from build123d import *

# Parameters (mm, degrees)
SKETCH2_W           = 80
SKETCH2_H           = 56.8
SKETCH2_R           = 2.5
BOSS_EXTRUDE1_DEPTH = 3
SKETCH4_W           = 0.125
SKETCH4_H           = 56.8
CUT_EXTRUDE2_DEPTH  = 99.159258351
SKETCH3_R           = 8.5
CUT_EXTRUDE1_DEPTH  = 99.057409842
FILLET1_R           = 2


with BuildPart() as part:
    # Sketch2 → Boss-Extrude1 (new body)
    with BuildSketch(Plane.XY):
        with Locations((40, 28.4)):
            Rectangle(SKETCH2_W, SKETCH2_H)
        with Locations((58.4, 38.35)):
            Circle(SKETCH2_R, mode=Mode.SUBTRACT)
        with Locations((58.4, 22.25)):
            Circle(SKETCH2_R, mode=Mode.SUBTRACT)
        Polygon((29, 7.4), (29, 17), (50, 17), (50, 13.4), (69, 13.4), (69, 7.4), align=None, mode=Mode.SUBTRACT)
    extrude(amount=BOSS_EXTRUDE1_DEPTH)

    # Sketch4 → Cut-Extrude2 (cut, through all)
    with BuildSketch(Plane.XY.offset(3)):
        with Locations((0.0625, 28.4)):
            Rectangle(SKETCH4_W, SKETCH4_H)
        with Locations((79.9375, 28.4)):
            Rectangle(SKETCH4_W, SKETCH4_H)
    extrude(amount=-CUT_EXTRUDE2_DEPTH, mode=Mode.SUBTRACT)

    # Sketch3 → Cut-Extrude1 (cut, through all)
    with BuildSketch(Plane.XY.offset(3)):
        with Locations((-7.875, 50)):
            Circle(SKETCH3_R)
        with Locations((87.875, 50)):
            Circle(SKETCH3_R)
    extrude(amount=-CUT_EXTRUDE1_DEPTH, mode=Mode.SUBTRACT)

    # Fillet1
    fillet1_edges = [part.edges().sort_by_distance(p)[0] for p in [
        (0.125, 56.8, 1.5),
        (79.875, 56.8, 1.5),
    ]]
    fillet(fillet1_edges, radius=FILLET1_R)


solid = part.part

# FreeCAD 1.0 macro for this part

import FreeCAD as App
import Part
import Sketcher

V = App.Vector


def edges_at(feature, points):
    """Names of the edges that pass closest to the given points."""
    edges = feature.Shape.Edges
    near = lambda p: min(range(len(edges)), key=lambda i: edges[i].distToShape(Part.Vertex(*p))[0])
    return sorted({f"Edge{near(p) + 1}" for p in points})


def add_polygon(sketch, points):
    """Adds a closed chain of lines whose ends are joined by coincident constraints."""
    first, n = sketch.GeometryCount, len(points)
    for a, b in zip(points, points[1:] + points[:1]):
        sketch.addGeometry(Part.LineSegment(App.Vector(*a, 0), App.Vector(*b, 0)), False)
    for i in range(n):
        sketch.addConstraint(Sketcher.Constraint("Coincident", first + i, 2, first + (i + 1) % n, 1))

doc = App.newDocument("Part")
body = doc.addObject("PartDesign::Body", "Body")

# Sketch on XY plane
sketch1 = doc.addObject("Sketcher::SketchObject", "Sketch")
body.addObject(sketch1)
sketch1.AttachmentSupport = (doc.XY_Plane, [""])
sketch1.MapMode = "FlatFace"
add_polygon(sketch1, [(0, 56.8), (0, 0), (80, 0), (80, 56.8)])  # lines 0-3
add_polygon(sketch1, [(69, 7.4), (29, 7.4), (29, 17), (50, 17), (50, 13.4), (69, 13.4)])  # lines 4-9
sketch1.addGeometry(Part.Circle(V(58.4, 22.25, 0), V(0, 0, 1), 2.5), False)  # 10
sketch1.addGeometry(Part.Circle(V(58.4, 38.35, 0), V(0, 0, 1), 2.5), False)  # 11
sketch1.addConstraint([
    Sketcher.Constraint("Vertical", 0),
    Sketcher.Constraint("Horizontal", 1),
    Sketcher.Constraint("Vertical", 2),
    Sketcher.Constraint("Horizontal", 3),
    Sketcher.Constraint("Horizontal", 4),
    Sketcher.Constraint("Vertical", 5),
    Sketcher.Constraint("Horizontal", 6),
    Sketcher.Constraint("Vertical", 7),
    Sketcher.Constraint("Horizontal", 8),
    Sketcher.Constraint("Vertical", 9),
    Sketcher.Constraint("Coincident", 0, 2, -1, 1),
    Sketcher.Constraint("Equal", 10, 11),
    Sketcher.Constraint("Vertical", 10, 3, 11, 3),
    Sketcher.Constraint("Diameter", 10, 5.0),
    Sketcher.Constraint("DistanceX", 1, 1, 1, 2, 80.0),
    Sketcher.Constraint("DistanceX", 4, 2, 4, 1, 40.0),
    Sketcher.Constraint("DistanceX", 6, 1, 6, 2, 21.0),
    Sketcher.Constraint("DistanceY", 9, 2, 9, 1, 6.0),
    Sketcher.Constraint("DistanceY", 0, 2, 0, 1, 56.8),
    Sketcher.Constraint("DistanceY", 5, 1, 5, 2, 9.6),
    Sketcher.Constraint("DistanceX", -1, 1, 4, 2, 29.0),
    Sketcher.Constraint("DistanceY", -1, 1, 5, 2, 17.0),
    Sketcher.Constraint("DistanceX", -1, 1, 10, 3, 58.4),
    Sketcher.Constraint("DistanceY", 10, 3, 11, 3, 16.1),
    Sketcher.Constraint("DistanceY", -1, 1, 10, 3, 22.25),
])
pad1 = doc.addObject("PartDesign::Pad", "Pad")
body.addObject(pad1)
pad1.Profile = sketch1
pad1.Length = 3

# Sketch on XY plane
sketch2 = doc.addObject("Sketcher::SketchObject", "Sketch001")
body.addObject(sketch2)
sketch2.AttachmentSupport = (doc.XY_Plane, [""])
sketch2.MapMode = "FlatFace"
sketch2.AttachmentOffset = App.Placement(V(0, 0, 3), App.Rotation())
add_polygon(sketch2, [(0, 56.8), (0, 0), (0.125, 0), (0.125, 56.8)])  # lines 0-3
add_polygon(sketch2, [(79.875, 56.8), (79.875, 0), (80, 0), (80, 56.8)])  # lines 4-7
sketch2.addConstraint([
    Sketcher.Constraint("Vertical", 0),
    Sketcher.Constraint("Horizontal", 1),
    Sketcher.Constraint("Vertical", 2),
    Sketcher.Constraint("Horizontal", 3),
    Sketcher.Constraint("Vertical", 4),
    Sketcher.Constraint("Horizontal", 5),
    Sketcher.Constraint("Vertical", 6),
    Sketcher.Constraint("Horizontal", 7),
    Sketcher.Constraint("Coincident", 0, 2, -1, 1),
    Sketcher.Constraint("PointOnObject", 4, 2, -1),
    Sketcher.Constraint("Horizontal", 3, 2, 6, 2),
    Sketcher.Constraint("Equal", 3, 5),
    Sketcher.Constraint("DistanceY", 0, 2, 0, 1, 56.8),
    Sketcher.Constraint("DistanceX", -1, 1, 5, 2, 80.0),
    Sketcher.Constraint("DistanceX", 1, 1, 1, 2, 0.125),
])
pocket1 = doc.addObject("PartDesign::Pocket", "Pocket")
body.addObject(pocket1)
pocket1.Profile = sketch2
pocket1.Type = "ThroughAll"

# Sketch on XY plane
sketch3 = doc.addObject("Sketcher::SketchObject", "Sketch002")
body.addObject(sketch3)
sketch3.AttachmentSupport = (doc.XY_Plane, [""])
sketch3.MapMode = "FlatFace"
sketch3.AttachmentOffset = App.Placement(V(0, 0, 3), App.Rotation())
sketch3.addGeometry([
    Part.Circle(V(-7.875, 50, 0), V(0, 0, 1), 8.5),
    Part.Circle(V(87.875, 50, 0), V(0, 0, 1), 8.5),
], False)
sketch3.addConstraint([
    Sketcher.Constraint("Equal", 0, 1),
    Sketcher.Constraint("Horizontal", 0, 3, 1, 3),
    Sketcher.Constraint("Diameter", 0, 17.0),
    Sketcher.Constraint("DistanceY", -1, 1, 0, 3, 50.0),
    Sketcher.Constraint("DistanceX", 0, 3, 1, 3, 95.75),
    Sketcher.Constraint("DistanceX", 0, 3, -1, 1, 7.875),
])
pocket2 = doc.addObject("PartDesign::Pocket", "Pocket001")
body.addObject(pocket2)
pocket2.Profile = sketch3
pocket2.Type = "ThroughAll"
doc.recompute()

fillet = doc.addObject("PartDesign::Fillet", "Fillet")
body.addObject(fillet)
fillet.Base = (pocket2, edges_at(pocket2, [(0.125, 56.8, 1.5), (79.875, 56.8, 1.5)]))
fillet.Radius = 2

doc.recompute()
